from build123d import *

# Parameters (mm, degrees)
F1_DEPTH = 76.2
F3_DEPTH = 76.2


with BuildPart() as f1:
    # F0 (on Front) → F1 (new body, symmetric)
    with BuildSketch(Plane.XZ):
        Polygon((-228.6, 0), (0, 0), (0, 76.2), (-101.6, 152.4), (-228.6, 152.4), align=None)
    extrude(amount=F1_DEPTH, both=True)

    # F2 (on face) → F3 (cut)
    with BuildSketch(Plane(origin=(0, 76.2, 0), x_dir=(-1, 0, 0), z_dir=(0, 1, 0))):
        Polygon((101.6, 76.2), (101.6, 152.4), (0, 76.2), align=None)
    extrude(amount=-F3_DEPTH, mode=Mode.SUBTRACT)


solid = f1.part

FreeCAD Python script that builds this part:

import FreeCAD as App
import Part
import Sketcher

V = App.Vector
Q = App.Units.Quantity


def add_polygon(sketch, points):
    """Adds a closed chain of lines whose ends are joined by coincident constraints."""
    first, n = sketch.GeometryCount, len(points)
    for a, b in zip(points, points[1:] + points[:1]):
        sketch.addGeometry(Part.LineSegment(App.Vector(*a, 0), App.Vector(*b, 0)), False)
    for i in range(n):
        sketch.addConstraint(Sketcher.Constraint("Coincident", first + i, 2, first + (i + 1) % n, 1))

doc = App.newDocument("Part")
body = doc.addObject("PartDesign::Body", "Body")

# Sketch on XZ plane
sketch1 = doc.addObject("Sketcher::SketchObject", "Sketch")
body.addObject(sketch1)
sketch1.AttachmentSupport = (doc.XZ_Plane, [""])
sketch1.MapMode = "FlatFace"
add_polygon(sketch1, [(-229, 0), (0, 0), (0, 76), (-102, 152), (-229, 152)])  # lines 0-4
sketch1.addConstraint(Sketcher.Constraint("Horizontal", 0))
sketch1.addConstraint(Sketcher.Constraint("Vertical", 1))
sketch1.addConstraint(Sketcher.Constraint("Horizontal", 3))
sketch1.addConstraint(Sketcher.Constraint("Vertical", 4))
sketch1.addConstraint(Sketcher.Constraint("Coincident", 0, 2, -1, 1))
sketch1.addConstraint(Sketcher.Constraint("DistanceX", 0, 1, 0, 2, Q("9 in")))
sketch1.addConstraint(Sketcher.Constraint("DistanceX", 3, 2, 3, 1, Q("5 in")))
sketch1.addConstraint(Sketcher.Constraint("DistanceY", 1, 1, 1, 2, Q("3 in")))
sketch1.addConstraint(Sketcher.Constraint("DistanceY", 4, 2, 4, 1, Q("6 in")))
pad1 = doc.addObject("PartDesign::Pad", "Pad")
body.addObject(pad1)
pad1.Profile = sketch1
pad1.Length = Q("6 in")
pad1.Midplane = True

# Sketch on XZ plane
sketch2 = doc.addObject("Sketcher::SketchObject", "Sketch001")
body.addObject(sketch2)
sketch2.AttachmentSupport = (doc.XZ_Plane, [""])
sketch2.MapMode = "FlatFace"
sketch2.AttachmentOffset = App.Placement(V(0, 0, -3 * 25.4), App.Rotation())
add_polygon(sketch2, [(-102, 76), (-102, 152), (0, 76)])  # lines 0-2
sketch2.addConstraint(Sketcher.Constraint("Vertical", 0))
sketch2.addConstraint(Sketcher.Constraint("Horizontal", 2))
sketch2.addConstraint(Sketcher.Constraint("PointOnObject", 1, 2, -2))
sketch2.addConstraint(Sketcher.Constraint("DistanceX", 2, 2, 2, 1, Q("4 in")))
sketch2.addConstraint(Sketcher.Constraint("DistanceY", 0, 1, 0, 2, Q("3 in")))
sketch2.addConstraint(Sketcher.Constraint("DistanceY", -1, 1, 0, 2, Q("6 in")))
pocket1 = doc.addObject("PartDesign::Pocket", "Pocket")
body.addObject(pocket1)
pocket1.Profile = sketch2
pocket1.Length = Q("3 in")
pocket1.Reversed = True

doc.recompute()
